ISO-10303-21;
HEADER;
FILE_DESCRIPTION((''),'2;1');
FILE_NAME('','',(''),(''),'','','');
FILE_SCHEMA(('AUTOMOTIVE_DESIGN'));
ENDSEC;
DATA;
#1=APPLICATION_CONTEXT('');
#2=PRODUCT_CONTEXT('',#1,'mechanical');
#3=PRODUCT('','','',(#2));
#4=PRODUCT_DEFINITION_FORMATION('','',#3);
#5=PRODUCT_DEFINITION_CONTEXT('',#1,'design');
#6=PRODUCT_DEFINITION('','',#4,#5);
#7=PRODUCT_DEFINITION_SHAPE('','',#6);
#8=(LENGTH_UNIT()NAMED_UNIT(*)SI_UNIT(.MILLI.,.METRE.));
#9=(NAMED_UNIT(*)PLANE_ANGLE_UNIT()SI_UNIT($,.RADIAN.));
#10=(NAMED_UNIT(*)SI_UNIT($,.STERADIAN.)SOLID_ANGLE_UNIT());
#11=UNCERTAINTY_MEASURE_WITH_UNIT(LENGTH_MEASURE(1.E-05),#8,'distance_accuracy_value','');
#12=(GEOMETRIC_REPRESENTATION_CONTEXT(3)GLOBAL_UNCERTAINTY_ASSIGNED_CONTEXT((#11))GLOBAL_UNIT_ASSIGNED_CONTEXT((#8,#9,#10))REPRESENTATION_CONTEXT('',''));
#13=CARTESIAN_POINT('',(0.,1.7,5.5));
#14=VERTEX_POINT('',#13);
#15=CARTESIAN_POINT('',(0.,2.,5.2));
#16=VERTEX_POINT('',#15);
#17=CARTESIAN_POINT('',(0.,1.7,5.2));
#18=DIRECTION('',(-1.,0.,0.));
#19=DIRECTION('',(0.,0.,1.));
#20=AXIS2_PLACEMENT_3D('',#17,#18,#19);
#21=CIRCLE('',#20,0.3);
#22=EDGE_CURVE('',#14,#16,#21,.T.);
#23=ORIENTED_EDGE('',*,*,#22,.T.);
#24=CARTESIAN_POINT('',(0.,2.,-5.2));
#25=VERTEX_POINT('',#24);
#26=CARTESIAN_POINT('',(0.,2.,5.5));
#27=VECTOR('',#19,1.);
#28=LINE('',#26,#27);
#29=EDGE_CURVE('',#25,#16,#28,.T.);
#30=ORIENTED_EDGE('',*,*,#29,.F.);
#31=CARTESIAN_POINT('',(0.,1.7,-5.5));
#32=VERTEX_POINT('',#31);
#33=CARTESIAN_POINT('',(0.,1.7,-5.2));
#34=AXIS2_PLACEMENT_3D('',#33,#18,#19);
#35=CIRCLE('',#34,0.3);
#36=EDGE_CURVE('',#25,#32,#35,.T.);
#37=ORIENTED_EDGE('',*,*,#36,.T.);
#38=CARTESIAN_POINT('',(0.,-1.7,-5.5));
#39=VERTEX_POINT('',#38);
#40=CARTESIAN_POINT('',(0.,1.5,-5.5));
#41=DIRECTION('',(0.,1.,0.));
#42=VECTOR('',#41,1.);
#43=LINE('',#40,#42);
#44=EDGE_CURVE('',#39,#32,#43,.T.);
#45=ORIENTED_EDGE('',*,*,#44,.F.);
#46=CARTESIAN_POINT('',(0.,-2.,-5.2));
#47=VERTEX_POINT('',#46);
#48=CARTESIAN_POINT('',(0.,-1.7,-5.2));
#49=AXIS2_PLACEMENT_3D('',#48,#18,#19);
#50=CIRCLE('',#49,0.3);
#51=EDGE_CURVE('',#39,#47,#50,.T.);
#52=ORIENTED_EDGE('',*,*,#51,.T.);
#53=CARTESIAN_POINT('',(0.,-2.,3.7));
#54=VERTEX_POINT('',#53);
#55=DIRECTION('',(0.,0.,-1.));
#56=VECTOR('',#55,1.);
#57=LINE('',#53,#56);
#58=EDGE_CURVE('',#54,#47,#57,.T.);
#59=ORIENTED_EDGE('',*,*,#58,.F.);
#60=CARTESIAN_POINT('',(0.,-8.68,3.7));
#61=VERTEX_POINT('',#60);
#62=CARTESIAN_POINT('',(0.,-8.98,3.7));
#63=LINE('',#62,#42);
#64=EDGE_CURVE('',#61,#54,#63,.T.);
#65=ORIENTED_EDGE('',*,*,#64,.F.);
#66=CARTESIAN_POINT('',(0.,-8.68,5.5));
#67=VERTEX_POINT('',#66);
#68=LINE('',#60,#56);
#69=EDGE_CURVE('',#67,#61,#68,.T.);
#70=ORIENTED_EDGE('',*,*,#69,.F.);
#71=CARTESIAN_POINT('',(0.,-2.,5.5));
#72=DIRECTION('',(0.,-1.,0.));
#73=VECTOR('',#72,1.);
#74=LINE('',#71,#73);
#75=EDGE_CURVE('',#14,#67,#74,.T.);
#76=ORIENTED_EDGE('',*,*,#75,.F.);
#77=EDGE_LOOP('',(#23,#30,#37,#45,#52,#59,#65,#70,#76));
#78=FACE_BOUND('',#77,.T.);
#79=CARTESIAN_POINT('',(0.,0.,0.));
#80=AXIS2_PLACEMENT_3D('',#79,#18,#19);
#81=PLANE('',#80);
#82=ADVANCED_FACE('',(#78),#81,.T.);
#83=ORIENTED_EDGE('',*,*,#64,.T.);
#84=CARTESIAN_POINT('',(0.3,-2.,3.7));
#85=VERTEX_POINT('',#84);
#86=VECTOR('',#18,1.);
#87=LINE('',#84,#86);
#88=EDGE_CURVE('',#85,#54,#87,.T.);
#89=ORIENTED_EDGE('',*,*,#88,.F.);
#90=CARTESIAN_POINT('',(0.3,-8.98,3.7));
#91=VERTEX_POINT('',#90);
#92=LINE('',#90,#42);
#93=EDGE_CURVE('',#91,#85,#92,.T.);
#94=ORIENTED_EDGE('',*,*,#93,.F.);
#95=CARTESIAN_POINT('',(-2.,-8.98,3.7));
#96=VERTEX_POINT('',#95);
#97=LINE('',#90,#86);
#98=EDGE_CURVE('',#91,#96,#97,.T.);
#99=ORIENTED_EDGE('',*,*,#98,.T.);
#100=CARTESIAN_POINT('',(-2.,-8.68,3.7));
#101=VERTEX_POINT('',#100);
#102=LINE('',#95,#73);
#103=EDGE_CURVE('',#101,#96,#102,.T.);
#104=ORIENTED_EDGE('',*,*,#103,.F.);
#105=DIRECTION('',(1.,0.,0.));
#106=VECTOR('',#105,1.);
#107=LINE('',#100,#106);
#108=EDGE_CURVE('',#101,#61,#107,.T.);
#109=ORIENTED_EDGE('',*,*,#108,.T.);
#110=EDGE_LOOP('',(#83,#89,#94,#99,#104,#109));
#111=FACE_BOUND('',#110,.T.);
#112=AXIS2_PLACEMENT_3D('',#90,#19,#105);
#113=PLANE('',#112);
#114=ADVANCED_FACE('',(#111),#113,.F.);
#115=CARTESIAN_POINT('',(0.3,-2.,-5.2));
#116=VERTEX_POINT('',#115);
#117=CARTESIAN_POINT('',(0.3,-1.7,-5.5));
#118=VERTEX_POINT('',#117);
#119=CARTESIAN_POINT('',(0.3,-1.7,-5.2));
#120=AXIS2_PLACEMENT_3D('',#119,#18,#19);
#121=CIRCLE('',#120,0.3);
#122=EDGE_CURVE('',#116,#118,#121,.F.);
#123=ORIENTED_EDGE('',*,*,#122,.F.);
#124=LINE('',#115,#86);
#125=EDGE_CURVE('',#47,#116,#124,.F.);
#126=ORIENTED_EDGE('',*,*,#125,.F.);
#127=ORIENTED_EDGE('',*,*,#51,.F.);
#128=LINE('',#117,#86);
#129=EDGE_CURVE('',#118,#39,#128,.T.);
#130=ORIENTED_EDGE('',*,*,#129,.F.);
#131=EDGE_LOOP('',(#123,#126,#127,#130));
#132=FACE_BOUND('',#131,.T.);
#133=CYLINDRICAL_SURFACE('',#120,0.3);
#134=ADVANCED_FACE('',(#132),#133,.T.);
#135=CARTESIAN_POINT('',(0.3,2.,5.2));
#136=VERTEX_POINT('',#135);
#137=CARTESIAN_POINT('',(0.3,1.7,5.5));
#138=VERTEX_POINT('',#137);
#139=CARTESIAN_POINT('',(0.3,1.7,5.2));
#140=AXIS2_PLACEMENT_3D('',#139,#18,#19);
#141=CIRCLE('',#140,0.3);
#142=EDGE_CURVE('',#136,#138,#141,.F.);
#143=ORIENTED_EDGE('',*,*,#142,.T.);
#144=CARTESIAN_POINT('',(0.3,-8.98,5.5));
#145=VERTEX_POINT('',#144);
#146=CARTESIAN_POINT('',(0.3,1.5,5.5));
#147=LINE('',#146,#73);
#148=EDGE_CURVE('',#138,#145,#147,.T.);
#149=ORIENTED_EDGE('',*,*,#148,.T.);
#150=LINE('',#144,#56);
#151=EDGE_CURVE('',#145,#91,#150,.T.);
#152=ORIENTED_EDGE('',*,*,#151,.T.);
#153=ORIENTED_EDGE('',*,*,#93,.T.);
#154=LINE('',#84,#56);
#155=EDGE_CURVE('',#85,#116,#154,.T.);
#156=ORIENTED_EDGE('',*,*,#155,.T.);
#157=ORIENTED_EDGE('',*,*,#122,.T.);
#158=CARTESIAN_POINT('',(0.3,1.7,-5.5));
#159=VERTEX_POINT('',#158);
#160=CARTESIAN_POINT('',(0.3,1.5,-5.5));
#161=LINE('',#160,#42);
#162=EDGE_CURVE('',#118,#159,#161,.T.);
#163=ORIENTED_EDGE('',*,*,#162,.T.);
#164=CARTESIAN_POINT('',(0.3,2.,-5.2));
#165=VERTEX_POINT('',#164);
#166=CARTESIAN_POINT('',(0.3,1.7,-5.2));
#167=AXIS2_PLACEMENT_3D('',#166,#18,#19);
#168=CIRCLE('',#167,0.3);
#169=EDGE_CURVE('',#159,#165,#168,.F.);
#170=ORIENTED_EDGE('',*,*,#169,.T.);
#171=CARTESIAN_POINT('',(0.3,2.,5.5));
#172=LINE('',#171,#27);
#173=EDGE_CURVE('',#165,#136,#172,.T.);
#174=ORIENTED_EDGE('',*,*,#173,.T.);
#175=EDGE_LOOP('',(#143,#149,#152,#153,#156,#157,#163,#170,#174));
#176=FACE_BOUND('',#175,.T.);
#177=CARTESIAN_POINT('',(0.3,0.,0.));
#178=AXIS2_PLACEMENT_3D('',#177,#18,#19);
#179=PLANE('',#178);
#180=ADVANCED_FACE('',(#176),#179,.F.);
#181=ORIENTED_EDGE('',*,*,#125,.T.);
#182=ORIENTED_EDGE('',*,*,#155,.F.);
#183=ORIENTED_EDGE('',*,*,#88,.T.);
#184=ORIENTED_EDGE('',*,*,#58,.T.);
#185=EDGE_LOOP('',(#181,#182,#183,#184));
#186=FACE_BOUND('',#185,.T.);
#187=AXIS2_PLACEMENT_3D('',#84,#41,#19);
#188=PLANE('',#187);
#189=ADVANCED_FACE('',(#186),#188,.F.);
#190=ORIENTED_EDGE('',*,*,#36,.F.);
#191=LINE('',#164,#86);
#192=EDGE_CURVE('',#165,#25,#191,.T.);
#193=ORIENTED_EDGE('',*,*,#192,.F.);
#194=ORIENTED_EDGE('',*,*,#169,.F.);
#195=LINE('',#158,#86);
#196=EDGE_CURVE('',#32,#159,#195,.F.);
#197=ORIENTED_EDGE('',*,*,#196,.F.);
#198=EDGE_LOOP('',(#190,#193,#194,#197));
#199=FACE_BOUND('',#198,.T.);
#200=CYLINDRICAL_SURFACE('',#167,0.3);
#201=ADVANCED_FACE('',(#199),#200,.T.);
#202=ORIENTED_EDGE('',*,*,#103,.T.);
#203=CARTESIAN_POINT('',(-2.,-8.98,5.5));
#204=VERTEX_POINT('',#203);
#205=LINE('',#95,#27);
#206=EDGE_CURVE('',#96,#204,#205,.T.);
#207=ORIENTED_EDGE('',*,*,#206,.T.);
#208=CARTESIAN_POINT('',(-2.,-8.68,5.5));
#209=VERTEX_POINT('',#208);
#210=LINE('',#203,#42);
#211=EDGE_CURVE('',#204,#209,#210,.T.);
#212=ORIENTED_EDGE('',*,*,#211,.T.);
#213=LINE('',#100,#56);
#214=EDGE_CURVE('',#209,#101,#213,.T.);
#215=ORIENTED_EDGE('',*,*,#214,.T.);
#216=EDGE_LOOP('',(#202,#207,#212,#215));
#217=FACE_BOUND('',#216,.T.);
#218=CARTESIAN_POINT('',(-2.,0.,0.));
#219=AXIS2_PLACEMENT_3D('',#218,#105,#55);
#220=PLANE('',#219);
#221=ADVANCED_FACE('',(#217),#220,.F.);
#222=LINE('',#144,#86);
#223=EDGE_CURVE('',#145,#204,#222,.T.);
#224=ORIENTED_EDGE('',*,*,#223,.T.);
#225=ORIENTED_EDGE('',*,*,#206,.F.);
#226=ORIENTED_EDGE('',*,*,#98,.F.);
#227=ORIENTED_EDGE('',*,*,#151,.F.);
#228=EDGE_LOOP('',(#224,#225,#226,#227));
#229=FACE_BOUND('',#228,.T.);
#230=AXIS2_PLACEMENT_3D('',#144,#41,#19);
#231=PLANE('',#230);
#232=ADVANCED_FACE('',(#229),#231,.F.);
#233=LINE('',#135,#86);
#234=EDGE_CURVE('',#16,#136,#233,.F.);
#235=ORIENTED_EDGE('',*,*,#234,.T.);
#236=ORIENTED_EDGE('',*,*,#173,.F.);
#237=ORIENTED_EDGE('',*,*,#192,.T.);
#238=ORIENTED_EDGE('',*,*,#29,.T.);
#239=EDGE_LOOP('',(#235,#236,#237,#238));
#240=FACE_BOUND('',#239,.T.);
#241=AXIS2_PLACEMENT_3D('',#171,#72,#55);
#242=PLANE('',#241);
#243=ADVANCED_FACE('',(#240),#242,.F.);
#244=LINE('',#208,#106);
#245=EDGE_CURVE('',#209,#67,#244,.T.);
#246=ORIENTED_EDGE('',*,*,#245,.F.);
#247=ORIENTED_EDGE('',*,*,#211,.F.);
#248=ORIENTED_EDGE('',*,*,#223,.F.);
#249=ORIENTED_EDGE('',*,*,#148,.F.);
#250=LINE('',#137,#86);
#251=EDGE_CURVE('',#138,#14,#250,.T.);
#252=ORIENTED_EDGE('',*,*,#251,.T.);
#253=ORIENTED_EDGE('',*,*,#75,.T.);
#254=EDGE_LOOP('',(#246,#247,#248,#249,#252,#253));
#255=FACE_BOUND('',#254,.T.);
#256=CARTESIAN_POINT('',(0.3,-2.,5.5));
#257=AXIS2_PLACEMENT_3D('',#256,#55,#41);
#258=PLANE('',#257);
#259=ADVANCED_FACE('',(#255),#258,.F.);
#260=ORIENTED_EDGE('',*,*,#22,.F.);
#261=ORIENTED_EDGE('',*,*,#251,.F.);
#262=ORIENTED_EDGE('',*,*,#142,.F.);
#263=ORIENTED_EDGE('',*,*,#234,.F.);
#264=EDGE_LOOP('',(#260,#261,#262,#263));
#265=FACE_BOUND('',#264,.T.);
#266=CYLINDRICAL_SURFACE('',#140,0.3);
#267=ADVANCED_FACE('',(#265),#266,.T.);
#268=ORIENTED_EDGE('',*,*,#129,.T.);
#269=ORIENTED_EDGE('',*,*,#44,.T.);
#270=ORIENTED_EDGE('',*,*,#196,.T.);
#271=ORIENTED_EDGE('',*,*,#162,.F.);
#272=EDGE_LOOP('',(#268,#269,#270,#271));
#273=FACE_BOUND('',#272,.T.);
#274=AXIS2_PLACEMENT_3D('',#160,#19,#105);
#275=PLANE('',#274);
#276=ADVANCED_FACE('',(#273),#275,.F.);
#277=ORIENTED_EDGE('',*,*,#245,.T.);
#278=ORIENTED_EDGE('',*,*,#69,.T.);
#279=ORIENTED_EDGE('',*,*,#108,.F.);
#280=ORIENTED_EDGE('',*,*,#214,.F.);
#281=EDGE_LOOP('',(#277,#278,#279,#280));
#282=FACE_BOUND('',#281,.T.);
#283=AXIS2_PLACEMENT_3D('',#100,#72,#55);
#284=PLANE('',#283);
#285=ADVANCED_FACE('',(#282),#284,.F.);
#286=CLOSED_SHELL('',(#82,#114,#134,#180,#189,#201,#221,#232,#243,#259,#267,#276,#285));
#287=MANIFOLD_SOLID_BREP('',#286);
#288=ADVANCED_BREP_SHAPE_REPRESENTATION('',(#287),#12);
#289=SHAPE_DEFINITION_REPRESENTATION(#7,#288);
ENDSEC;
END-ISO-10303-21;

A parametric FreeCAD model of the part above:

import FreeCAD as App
import Part
import Sketcher
from FreeCAD import Vector


def edges_at(feature, points):
    """Names of the edges that pass closest to the given points."""
    edges = feature.Shape.Edges
    near = lambda p: min(range(len(edges)), key=lambda i: edges[i].distToShape(Part.Vertex(*p))[0])
    return sorted({f"Edge{near(p) + 1}" for p in points})


def add_polygon(sketch, points):
    """Adds a closed chain of lines whose ends are joined by coincident constraints."""
    first, n = sketch.GeometryCount, len(points)
    for a, b in zip(points, points[1:] + points[:1]):
        sketch.addGeometry(Part.LineSegment(App.Vector(*a, 0), App.Vector(*b, 0)), False)
    for i in range(n):
        sketch.addConstraint(Sketcher.Constraint("Coincident", first + i, 2, first + (i + 1) % n, 1))

doc = App.newDocument("Part")
params = doc.addObject("Spreadsheet::Sheet", "Params")
for row, (alias, value) in enumerate([
    ("sketch1_width", "4 mm"),
    ("sketch1_height", "11 mm"),
    ("sketch1_height2", "1.8 mm"),
    ("sketch1_width2", "10.98 mm"),
    ("pad1_length", "0.3 mm"),
    ("sketch2_width", "0.3 mm"),
    ("sketch2_height", "1.8 mm"),
    ("pad2_length", "2 mm"),
    ("fillet_radius", "0.3 mm"),
], start=1):
    params.set(f"A{row}", alias)
    params.set(f"B{row}", "=" + value)
    params.setAlias(f"B{row}", alias)

body = doc.addObject("PartDesign::Body", "Body")

# Sketch on YZ plane
sketch1 = body.newObject("Sketcher::SketchObject", "Sketch")
sketch1.AttachmentSupport = (doc.getObject("YZ_Plane"), [""])
sketch1.MapMode = "FlatFace"
add_polygon(sketch1, [(2, 5.5), (-9, 5.5), (-9, 3.7), (-2, 3.7), (-2, -5.5), (2, -5.5)])  # lines 0-5
sketch1.addConstraint(Sketcher.Constraint("Horizontal", 0))
sketch1.addConstraint(Sketcher.Constraint("Vertical", 1))
sketch1.addConstraint(Sketcher.Constraint("Horizontal", 2))
sketch1.addConstraint(Sketcher.Constraint("Vertical", 3))
sketch1.addConstraint(Sketcher.Constraint("Horizontal", 4))
sketch1.addConstraint(Sketcher.Constraint("Vertical", 5))
sketch1.addConstraint(Sketcher.Constraint("Symmetric", 3, 2, 5, 2, -1, 1))
sketch1.addConstraint(Sketcher.Constraint("DistanceX", 4, 1, 4, 2, 4.0))
sketch1.addConstraint(Sketcher.Constraint("DistanceY", 5, 1, 5, 2, 11.0))
sketch1.addConstraint(Sketcher.Constraint("DistanceY", 1, 2, 1, 1, 1.8))
sketch1.addConstraint(Sketcher.Constraint("DistanceX", 0, 2, 0, 1, 10.98))
sketch1.setExpression("Constraints[13]", "Params.sketch1_width")
sketch1.setExpression("Constraints[14]", "Params.sketch1_height")
sketch1.setExpression("Constraints[15]", "Params.sketch1_height2")
sketch1.setExpression("Constraints[16]", "Params.sketch1_width2")
pad1 = body.newObject("PartDesign::Pad", "Pad")
pad1.Profile = sketch1
pad1.setExpression("Length", "Params.pad1_length")

# Sketch on YZ plane
sketch2 = body.newObject("Sketcher::SketchObject", "Sketch001")
sketch2.AttachmentSupport = (doc.getObject("YZ_Plane"), [""])
sketch2.MapMode = "FlatFace"
add_polygon(sketch2, [(-8.68, 3.7), (-8.98, 3.7), (-8.98, 5.5), (-8.68, 5.5)])  # lines 0-3
sketch2.addConstraint(Sketcher.Constraint("Horizontal", 0))
sketch2.addConstraint(Sketcher.Constraint("Vertical", 1))
sketch2.addConstraint(Sketcher.Constraint("Horizontal", 2))
sketch2.addConstraint(Sketcher.Constraint("Vertical", 3))
sketch2.addConstraint(Sketcher.Constraint("DistanceX", 0, 2, 0, 1, 0.3))
sketch2.addConstraint(Sketcher.Constraint("DistanceY", 1, 1, 1, 2, 1.8))
sketch2.addConstraint(Sketcher.Constraint("DistanceY", -1, 1, 0, 2, 3.7))
sketch2.addConstraint(Sketcher.Constraint("DistanceX", 0, 2, -1, 1, 8.98))
sketch2.setExpression("Constraints[8]", "Params.sketch2_width")
sketch2.setExpression("Constraints[9]", "Params.sketch2_height")
pad2 = body.newObject("PartDesign::Pad", "Pad001")
pad2.Profile = sketch2
pad2.setExpression("Length", "Params.pad2_length")
pad2.Reversed = True
doc.recompute()

fillet = body.newObject("PartDesign::Fillet", "Fillet")
fillet.Base = (pad2, edges_at(pad2, [(0.15, -2, -5.5), (0.15, 2, 5.5), (0.15, 2, -5.5)]))
fillet.setExpression("Radius", "Params.fillet_radius")

doc.recompute()
